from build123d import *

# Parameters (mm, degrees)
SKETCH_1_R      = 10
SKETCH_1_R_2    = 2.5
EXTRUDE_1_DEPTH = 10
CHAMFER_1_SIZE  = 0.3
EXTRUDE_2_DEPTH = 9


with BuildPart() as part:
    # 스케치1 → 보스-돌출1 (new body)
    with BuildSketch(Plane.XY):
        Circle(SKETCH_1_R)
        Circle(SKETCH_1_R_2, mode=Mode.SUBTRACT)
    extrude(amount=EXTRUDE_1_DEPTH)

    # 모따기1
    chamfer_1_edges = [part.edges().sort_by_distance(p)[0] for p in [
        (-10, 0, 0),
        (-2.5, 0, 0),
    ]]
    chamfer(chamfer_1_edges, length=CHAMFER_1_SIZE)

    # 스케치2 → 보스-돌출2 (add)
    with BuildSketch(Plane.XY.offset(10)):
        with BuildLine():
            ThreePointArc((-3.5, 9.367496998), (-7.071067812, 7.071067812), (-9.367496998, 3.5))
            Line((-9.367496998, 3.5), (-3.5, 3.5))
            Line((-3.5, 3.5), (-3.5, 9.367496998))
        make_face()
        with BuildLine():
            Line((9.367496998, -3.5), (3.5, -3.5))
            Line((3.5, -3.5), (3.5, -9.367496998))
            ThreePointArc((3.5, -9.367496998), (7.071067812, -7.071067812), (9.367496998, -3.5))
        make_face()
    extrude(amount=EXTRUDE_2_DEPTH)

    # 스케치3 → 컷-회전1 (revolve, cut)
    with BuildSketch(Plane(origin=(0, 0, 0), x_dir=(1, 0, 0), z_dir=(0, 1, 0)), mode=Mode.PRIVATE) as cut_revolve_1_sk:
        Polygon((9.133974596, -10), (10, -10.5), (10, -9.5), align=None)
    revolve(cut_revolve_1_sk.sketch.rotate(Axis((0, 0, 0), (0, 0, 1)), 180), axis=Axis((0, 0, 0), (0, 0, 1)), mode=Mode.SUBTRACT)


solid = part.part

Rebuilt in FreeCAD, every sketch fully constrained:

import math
import FreeCAD as App
import Part
import Sketcher
Q = App.Units.Quantity


def edges_at(feature, points):
    """Names of the edges that pass closest to the given points."""
    edges = feature.Shape.Edges
    near = lambda p: min(range(len(edges)), key=lambda i: edges[i].distToShape(Part.Vertex(*p))[0])
    return sorted({f"Edge{near(p) + 1}" for p in points})

doc = App.newDocument("Part")
body = doc.addObject("PartDesign::Body", "Body")

# Sketch on XY plane
sketch1 = body.newObject("Sketcher::SketchObject", "Sketch")
sketch1.AttachmentSupport = (doc.getObject("XY_Plane"), [""])
sketch1.MapMode = "FlatFace"
sketch1.addGeometry([
    Part.Circle(App.Vector(0, 0, 0), App.Vector(0, 0, 1), 10),
    Part.Circle(App.Vector(0, 0, 0), App.Vector(0, 0, 1), 2.5),
], False)
sketch1.addConstraint([
    Sketcher.Constraint("Coincident", 0, 3, -1, 1),
    Sketcher.Constraint("Coincident", 1, 3, -1, 1),
    Sketcher.Constraint("Diameter", 0, 20.0),
    Sketcher.Constraint("Diameter", 1, 5.0),
])
pad1 = body.newObject("PartDesign::Pad", "Pad")
pad1.Profile = sketch1
pad1.Length = 10
doc.recompute()

chamfer = body.newObject("PartDesign::Chamfer", "Chamfer")
chamfer.Base = (pad1, edges_at(pad1, [(-10, 0, 0), (-2.5, 0, 0)]))
chamfer.Size = 0.3

# Sketch on XY plane
sketch2 = body.newObject("Sketcher::SketchObject", "Sketch001")
sketch2.AttachmentSupport = (doc.getObject("XY_Plane"), [""])
sketch2.MapMode = "FlatFace"
sketch2.AttachmentOffset = App.Placement(App.Vector(0, 0, 10), App.Rotation())
sketch2.addGeometry([
    Part.ArcOfCircle(Part.Circle(App.Vector(0, 0, 0), App.Vector(0, 0, 1), 10), math.radians(110.487315), math.radians(159.512685)),  # 0
    Part.LineSegment(App.Vector(-9.367497, 3.5, 0), App.Vector(-3.5, 3.5, 0)),  # 1
    Part.LineSegment(App.Vector(-3.5, 3.5, 0), App.Vector(-3.5, 9.367497, 0)),  # 2
    Part.LineSegment(App.Vector(9.367497, -3.5, 0), App.Vector(3.5, -3.5, 0)),  # 3
    Part.LineSegment(App.Vector(3.5, -3.5, 0), App.Vector(3.5, -9.367497, 0)),  # 4
    Part.ArcOfCircle(Part.Circle(App.Vector(0, 0, 0), App.Vector(0, 0, 1), 10), math.radians(-69.512685), math.radians(-20.487315)),  # 5
], False)
sketch2.addConstraint([
    Sketcher.Constraint("Coincident", 0, 2, 1, 1),
    Sketcher.Constraint("Coincident", 1, 2, 2, 1),
    Sketcher.Constraint("Coincident", 2, 2, 0, 1),
    Sketcher.Constraint("Coincident", 3, 2, 4, 1),
    Sketcher.Constraint("Coincident", 4, 2, 5, 1),
    Sketcher.Constraint("Coincident", 5, 2, 3, 1),
    Sketcher.Constraint("Horizontal", 1),
    Sketcher.Constraint("Vertical", 2),
    Sketcher.Constraint("Horizontal", 3),
    Sketcher.Constraint("Vertical", 4),
    Sketcher.Constraint("Coincident", 0, 3, -1, 1),
    Sketcher.Constraint("Coincident", 5, 3, -1, 1),
    Sketcher.Constraint("Equal", 0, 5),
    Sketcher.Constraint("Symmetric", 1, 2, 3, 2, -1, 1),
    Sketcher.Constraint("Equal", 3, 2),
    Sketcher.Constraint("Radius", 0, 10.0),
    Sketcher.Constraint("DistanceX", 1, 2, 3, 2, 7.0),
])
pad2 = body.newObject("PartDesign::Pad", "Pad001")
pad2.Profile = sketch2
pad2.Length = 9

# Sketch on XZ plane
sketch3 = body.newObject("Sketcher::SketchObject", "Sketch002")
sketch3.AttachmentSupport = (doc.getObject("XZ_Plane"), [""])
sketch3.MapMode = "FlatFace"
sketch3.addGeometry([
    Part.LineSegment(App.Vector(9.133975, 10, 0), App.Vector(10, 10.5, 0)),
    Part.LineSegment(App.Vector(10, 10.5, 0), App.Vector(10, 9.5, 0)),
    Part.LineSegment(App.Vector(10, 9.5, 0), App.Vector(9.133975, 10, 0)),
], False)
sketch3.addConstraint([
    Sketcher.Constraint("Coincident", 0, 2, 1, 1),
    Sketcher.Constraint("Coincident", 1, 2, 2, 1),
    Sketcher.Constraint("Coincident", 2, 2, 0, 1),
    Sketcher.Constraint("Vertical", 1),
    Sketcher.Constraint("Equal", 0, 2),
    Sketcher.Constraint("DistanceY", 1, 2, 1, 1, 1.0),
    Sketcher.Constraint("Angle", 0, Q("30 deg")),
    Sketcher.Constraint("DistanceX", -1, 1, 0, 2, 10.0),
    Sketcher.Constraint("DistanceY", -1, 1, 2, 2, 10.0),
])
groove = body.newObject("PartDesign::Groove", "Groove")
groove.Profile = sketch3
groove.ReferenceAxis = (sketch3, ["V_Axis"])
groove.Angle = 360

doc.recompute()
